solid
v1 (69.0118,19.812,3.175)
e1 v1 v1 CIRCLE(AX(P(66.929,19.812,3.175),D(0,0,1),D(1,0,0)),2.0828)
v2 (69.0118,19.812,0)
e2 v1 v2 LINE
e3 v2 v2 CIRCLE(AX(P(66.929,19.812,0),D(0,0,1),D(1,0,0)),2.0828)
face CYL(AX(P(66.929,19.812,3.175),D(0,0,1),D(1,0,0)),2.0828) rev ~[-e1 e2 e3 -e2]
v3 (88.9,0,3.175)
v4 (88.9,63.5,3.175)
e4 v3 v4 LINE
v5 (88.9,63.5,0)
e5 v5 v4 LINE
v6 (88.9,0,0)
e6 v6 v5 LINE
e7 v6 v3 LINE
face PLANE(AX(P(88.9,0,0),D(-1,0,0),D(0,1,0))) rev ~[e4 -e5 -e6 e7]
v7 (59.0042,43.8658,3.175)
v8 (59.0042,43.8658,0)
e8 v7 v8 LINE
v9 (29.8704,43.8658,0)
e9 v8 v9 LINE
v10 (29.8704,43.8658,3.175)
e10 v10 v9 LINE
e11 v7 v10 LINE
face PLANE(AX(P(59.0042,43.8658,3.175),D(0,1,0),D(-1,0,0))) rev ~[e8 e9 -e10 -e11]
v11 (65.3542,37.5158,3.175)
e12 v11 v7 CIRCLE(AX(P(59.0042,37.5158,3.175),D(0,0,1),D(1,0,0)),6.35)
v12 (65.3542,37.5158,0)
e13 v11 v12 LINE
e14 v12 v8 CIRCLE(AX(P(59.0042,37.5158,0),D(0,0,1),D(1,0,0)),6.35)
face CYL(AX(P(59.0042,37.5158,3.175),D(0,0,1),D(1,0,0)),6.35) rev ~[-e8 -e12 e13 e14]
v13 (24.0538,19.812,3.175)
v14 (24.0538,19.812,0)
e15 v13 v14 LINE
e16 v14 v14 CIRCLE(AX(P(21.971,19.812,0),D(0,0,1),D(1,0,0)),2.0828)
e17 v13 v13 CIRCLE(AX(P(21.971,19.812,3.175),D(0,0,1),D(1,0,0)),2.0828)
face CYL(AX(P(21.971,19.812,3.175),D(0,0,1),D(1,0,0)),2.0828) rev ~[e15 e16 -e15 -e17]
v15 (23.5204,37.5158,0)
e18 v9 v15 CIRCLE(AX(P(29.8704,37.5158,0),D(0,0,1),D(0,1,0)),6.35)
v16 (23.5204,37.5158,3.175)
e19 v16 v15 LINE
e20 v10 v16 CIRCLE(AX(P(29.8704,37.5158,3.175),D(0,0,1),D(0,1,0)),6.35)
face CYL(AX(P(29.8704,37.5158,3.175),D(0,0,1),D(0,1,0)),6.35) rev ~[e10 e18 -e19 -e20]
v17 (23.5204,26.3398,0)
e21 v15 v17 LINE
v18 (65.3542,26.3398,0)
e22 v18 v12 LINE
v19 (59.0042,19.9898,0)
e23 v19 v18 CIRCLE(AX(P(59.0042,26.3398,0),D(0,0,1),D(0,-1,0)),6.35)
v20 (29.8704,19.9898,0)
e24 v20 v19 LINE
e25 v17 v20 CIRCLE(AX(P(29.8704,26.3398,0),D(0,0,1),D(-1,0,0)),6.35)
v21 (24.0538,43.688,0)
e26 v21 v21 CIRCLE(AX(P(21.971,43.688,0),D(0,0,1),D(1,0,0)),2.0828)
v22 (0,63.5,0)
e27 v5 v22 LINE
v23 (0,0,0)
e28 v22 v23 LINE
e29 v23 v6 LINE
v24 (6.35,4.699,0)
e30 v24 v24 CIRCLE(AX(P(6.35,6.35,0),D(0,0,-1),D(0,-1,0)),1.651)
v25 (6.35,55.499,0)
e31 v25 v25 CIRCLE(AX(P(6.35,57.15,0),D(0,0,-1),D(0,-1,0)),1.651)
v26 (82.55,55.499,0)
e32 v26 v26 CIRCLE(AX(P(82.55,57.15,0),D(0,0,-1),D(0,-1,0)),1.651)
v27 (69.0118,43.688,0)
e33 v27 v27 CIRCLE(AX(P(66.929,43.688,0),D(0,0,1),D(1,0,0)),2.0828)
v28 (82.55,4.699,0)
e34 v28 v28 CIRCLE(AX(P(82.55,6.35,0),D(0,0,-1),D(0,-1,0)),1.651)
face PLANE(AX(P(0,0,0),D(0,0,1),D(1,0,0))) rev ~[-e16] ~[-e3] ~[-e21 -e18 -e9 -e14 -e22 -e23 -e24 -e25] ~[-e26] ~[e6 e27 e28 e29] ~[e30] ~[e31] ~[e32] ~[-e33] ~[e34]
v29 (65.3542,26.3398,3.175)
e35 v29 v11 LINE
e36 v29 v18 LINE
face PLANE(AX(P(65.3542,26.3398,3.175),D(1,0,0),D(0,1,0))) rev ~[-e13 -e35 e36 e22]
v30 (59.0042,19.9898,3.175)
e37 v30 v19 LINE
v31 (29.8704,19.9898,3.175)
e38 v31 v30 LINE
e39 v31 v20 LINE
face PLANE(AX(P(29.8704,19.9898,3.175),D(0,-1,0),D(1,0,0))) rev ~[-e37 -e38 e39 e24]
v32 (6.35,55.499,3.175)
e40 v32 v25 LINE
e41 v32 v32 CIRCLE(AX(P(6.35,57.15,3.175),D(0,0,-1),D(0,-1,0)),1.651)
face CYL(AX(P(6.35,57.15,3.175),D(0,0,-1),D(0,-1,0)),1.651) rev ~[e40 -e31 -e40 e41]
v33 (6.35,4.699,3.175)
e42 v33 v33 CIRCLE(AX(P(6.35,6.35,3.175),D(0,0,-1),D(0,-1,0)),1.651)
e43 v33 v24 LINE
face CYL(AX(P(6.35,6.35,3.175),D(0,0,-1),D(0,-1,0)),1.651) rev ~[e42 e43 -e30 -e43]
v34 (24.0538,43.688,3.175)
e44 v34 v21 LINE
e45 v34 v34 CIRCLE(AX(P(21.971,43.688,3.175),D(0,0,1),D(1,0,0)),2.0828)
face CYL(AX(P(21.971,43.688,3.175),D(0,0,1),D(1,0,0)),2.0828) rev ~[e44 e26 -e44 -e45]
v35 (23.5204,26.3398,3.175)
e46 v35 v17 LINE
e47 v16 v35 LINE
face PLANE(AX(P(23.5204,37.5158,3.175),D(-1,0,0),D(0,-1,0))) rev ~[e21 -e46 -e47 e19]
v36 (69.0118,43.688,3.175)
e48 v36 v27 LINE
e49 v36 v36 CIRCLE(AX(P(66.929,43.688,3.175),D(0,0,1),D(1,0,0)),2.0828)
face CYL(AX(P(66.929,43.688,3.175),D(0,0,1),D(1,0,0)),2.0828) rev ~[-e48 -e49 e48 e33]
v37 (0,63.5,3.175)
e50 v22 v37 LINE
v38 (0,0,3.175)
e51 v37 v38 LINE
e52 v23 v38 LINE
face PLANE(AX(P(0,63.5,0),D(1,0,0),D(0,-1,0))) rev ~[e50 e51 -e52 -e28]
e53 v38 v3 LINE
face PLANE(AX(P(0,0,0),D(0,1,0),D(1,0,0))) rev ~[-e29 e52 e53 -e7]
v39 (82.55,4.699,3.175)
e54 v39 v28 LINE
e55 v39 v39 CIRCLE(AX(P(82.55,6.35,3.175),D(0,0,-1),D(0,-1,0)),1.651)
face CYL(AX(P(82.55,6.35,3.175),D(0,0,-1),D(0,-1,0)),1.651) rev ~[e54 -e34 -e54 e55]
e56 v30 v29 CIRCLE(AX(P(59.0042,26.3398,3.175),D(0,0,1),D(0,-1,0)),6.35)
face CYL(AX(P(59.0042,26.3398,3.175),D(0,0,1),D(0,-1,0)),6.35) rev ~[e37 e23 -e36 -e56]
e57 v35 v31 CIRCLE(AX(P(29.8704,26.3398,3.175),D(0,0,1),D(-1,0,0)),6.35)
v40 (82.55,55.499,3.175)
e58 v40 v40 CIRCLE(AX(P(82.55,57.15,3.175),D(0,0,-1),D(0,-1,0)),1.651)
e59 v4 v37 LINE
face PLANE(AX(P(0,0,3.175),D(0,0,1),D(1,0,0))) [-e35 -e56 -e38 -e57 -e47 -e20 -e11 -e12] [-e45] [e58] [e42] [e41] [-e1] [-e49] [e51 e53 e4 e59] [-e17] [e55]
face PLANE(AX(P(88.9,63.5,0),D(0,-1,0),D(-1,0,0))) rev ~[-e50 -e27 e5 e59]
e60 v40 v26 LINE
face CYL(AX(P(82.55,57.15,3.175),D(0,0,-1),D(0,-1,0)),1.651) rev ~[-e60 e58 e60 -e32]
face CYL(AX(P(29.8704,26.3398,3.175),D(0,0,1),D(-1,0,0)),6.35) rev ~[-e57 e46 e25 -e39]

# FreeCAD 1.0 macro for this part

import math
import FreeCAD as App
import Part
import Sketcher
Q = App.Units.Quantity

doc = App.newDocument("Part")
body = doc.addObject("PartDesign::Body", "Body")

# Sketch on XY plane
sketch1 = body.newObject("Sketcher::SketchObject", "Sketch")
sketch1.AttachmentSupport = (doc.getObject("XY_Plane"), [""])
sketch1.MapMode = "FlatFace"
sketch1.addGeometry([
    Part.LineSegment(App.Vector(0, 64, 0), App.Vector(0, 0, 0)),
    Part.LineSegment(App.Vector(0, 0, 0), App.Vector(89, 0, 0)),
    Part.LineSegment(App.Vector(89, 0, 0), App.Vector(89, 64, 0)),
    Part.LineSegment(App.Vector(89, 64, 0), App.Vector(0, 64, 0)),
], False)
sketch1.addConstraint([
    Sketcher.Constraint("Coincident", 0, 2, 1, 1),
    Sketcher.Constraint("Coincident", 1, 2, 2, 1),
    Sketcher.Constraint("Coincident", 2, 2, 3, 1),
    Sketcher.Constraint("Coincident", 3, 2, 0, 1),
    Sketcher.Constraint("Vertical", 0),
    Sketcher.Constraint("Horizontal", 1),
    Sketcher.Constraint("Vertical", 2),
    Sketcher.Constraint("Horizontal", 3),
    Sketcher.Constraint("Coincident", 0, 2, -1, 1),
    Sketcher.Constraint("DistanceX", 1, 1, 1, 2, Q("3.5 in")),
    Sketcher.Constraint("DistanceY", 0, 2, 0, 1, Q("2.5 in")),
])
pad1 = body.newObject("PartDesign::Pad", "Pad")
pad1.Profile = sketch1
pad1.Length = Q("0.125 in")

# Sketch on XY plane
sketch2 = body.newObject("Sketcher::SketchObject", "Sketch001")
sketch2.AttachmentSupport = (doc.getObject("XY_Plane"), [""])
sketch2.MapMode = "FlatFace"
sketch2.AttachmentOffset = App.Placement(App.Vector(0, 0, 0.125 * 25.4), App.Rotation())
sketch2.addGeometry([
    Part.Circle(App.Vector(22, 43.7, 0), App.Vector(0, 0, 1), 2.1),  # 0
    Part.Circle(App.Vector(66.9, 43.7, 0), App.Vector(0, 0, 1), 2.1),  # 1
    Part.Circle(App.Vector(66.9, 19.8, 0), App.Vector(0, 0, 1), 2.1),  # 2
    Part.Circle(App.Vector(22, 19.8, 0), App.Vector(0, 0, 1), 2.1),  # 3
    Part.ArcOfCircle(Part.Circle(App.Vector(29.9, 26.3, 0), App.Vector(0, 0, 1), 6.4), math.radians(180), math.radians(270)),  # 4
    Part.LineSegment(App.Vector(29.9, 20, 0), App.Vector(59, 20, 0)),  # 5
    Part.ArcOfCircle(Part.Circle(App.Vector(59, 26.3, 0), App.Vector(0, 0, 1), 6.4), math.radians(-90), math.radians(0)),  # 6
    Part.LineSegment(App.Vector(65.4, 26.3, 0), App.Vector(65.4, 37.5, 0)),  # 7
    Part.ArcOfCircle(Part.Circle(App.Vector(59, 37.5, 0), App.Vector(0, 0, 1), 6.4), math.radians(0), math.radians(90)),  # 8
    Part.LineSegment(App.Vector(59, 43.9, 0), App.Vector(29.9, 43.9, 0)),  # 9
    Part.ArcOfCircle(Part.Circle(App.Vector(29.9, 37.5, 0), App.Vector(0, 0, 1), 6.4), math.radians(90), math.radians(180)),  # 10
    Part.LineSegment(App.Vector(23.5, 37.5, 0), App.Vector(23.5, 26.3, 0)),  # 11
], False)
sketch2.addConstraint([
    Sketcher.Constraint("Tangent", 4, 2, 5, 1),
    Sketcher.Constraint("Tangent", 5, 2, 6, 1),
    Sketcher.Constraint("Tangent", 6, 2, 7, 1),
    Sketcher.Constraint("Tangent", 7, 2, 8, 1),
    Sketcher.Constraint("Tangent", 8, 2, 9, 1),
    Sketcher.Constraint("Tangent", 9, 2, 10, 1),
    Sketcher.Constraint("Tangent", 10, 2, 11, 1),
    Sketcher.Constraint("Tangent", 11, 2, 4, 1),
    Sketcher.Constraint("Horizontal", 5),
    Sketcher.Constraint("Vertical", 7),
    Sketcher.Constraint("Horizontal", 9),
    Sketcher.Constraint("Vertical", 11),
    Sketcher.Constraint("Equal", 0, 1),
    Sketcher.Constraint("Equal", 1, 2),
    Sketcher.Constraint("Equal", 2, 3),
    Sketcher.Constraint("Equal", 4, 6),
    Sketcher.Constraint("Equal", 6, 8),
    Sketcher.Constraint("Equal", 8, 10),
    Sketcher.Constraint("Horizontal", 0, 3, 1, 3),
    Sketcher.Constraint("Horizontal", 2, 3, 3, 3),
    Sketcher.Constraint("Vertical", 1, 3, 2, 3),
    Sketcher.Constraint("Vertical", 0, 3, 3, 3),
    Sketcher.Constraint("Radius", 4, Q("0.25 in")),
    Sketcher.Constraint("Diameter", 0, Q("0.164 in")),
    Sketcher.Constraint("DistanceY", 2, 3, 1, 3, Q("0.94 in")),
    Sketcher.Constraint("DistanceY", 4, 2, 9, 2, Q("0.94 in")),
    Sketcher.Constraint("DistanceY", 3, 3, 4, 2, Q("0.007 in")),
    Sketcher.Constraint("DistanceX", 6, 2, 2, 3, Q("0.062 in")),
    Sketcher.Constraint("DistanceX", 5, 1, 5, 2, Q("1.147 in")),
    Sketcher.Constraint("DistanceY", -1, 1, 0, 3, Q("1.72 in")),
    Sketcher.Constraint("DistanceX", 0, 3, 1, 3, Q("1.77 in")),
    Sketcher.Constraint("DistanceX", -1, 1, 0, 3, Q("0.865 in")),
])
pocket1 = body.newObject("PartDesign::Pocket", "Pocket")
pocket1.Profile = sketch2
pocket1.Type = "ThroughAll"

# Sketch on XY plane
sketch3 = body.newObject("Sketcher::SketchObject", "Sketch002")
sketch3.AttachmentSupport = (doc.getObject("XY_Plane"), [""])
sketch3.MapMode = "FlatFace"
sketch3.AttachmentOffset = App.Placement(App.Vector(0, 0, 0.125 * 25.4), App.Rotation())
sketch3.addGeometry([
    Part.Circle(App.Vector(6.3, 57.1, 0), App.Vector(0, 0, 1), 1.7),
    Part.Circle(App.Vector(6.3, 6.3, 0), App.Vector(0, 0, 1), 1.7),
    Part.Circle(App.Vector(82.5, 6.3, 0), App.Vector(0, 0, 1), 1.7),
    Part.Circle(App.Vector(82.5, 57.1, 0), App.Vector(0, 0, 1), 1.7),
], False)
sketch3.addConstraint([
    Sketcher.Constraint("Equal", 0, 1),
    Sketcher.Constraint("Equal", 1, 2),
    Sketcher.Constraint("Equal", 2, 3),
    Sketcher.Constraint("Horizontal", 1, 3, 2, 3),
    Sketcher.Constraint("Horizontal", 0, 3, 3, 3),
    Sketcher.Constraint("Vertical", 0, 3, 1, 3),
    Sketcher.Constraint("Vertical", 2, 3, 3, 3),
    Sketcher.Constraint("Diameter", 0, Q("0.13 in")),
    Sketcher.Constraint("DistanceY", 1, 3, 0, 3, Q("2 in")),
    Sketcher.Constraint("DistanceX", 1, 3, 2, 3, Q("3 in")),
    Sketcher.Constraint("DistanceX", -1, 1, 0, 3, Q("0.25 in")),
    Sketcher.Constraint("DistanceY", -1, 1, 0, 3, Q("2.25 in")),
])
doc.recompute()
hole = body.newObject("PartDesign::Hole", "Hole")
hole.Profile = sketch3
hole.ThreadType = "None"
hole.Diameter = Q("0.13 in")
hole.DepthType = "ThroughAll"

doc.recompute()
